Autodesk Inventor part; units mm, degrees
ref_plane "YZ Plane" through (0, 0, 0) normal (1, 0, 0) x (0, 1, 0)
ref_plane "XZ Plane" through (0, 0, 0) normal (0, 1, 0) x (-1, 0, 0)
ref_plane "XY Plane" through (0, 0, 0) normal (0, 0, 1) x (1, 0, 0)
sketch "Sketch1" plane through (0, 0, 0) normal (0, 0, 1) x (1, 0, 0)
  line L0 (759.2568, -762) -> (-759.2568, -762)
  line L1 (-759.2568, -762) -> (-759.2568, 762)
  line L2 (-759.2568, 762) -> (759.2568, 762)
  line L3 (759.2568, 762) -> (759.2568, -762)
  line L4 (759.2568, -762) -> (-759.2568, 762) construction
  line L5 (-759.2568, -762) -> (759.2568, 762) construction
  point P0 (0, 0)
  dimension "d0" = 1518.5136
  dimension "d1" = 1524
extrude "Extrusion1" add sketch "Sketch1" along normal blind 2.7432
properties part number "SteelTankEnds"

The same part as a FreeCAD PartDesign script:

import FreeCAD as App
import Part
import Sketcher

V = App.Vector
Q = App.Units.Quantity

doc = App.newDocument("Part")
params = doc.addObject("Spreadsheet::Sheet", "Params")
for row, (alias, value) in enumerate([
    ("sketch1_height", "60 in"),
    ("sketch1_width", "59.784 in"),
    ("pad1_length", "0.108 in"),
], start=1):
    params.set(f"A{row}", alias)
    params.set(f"B{row}", "=" + value)
    params.setAlias(f"B{row}", alias)

body = doc.addObject("PartDesign::Body", "Body")

# Sketch on XY plane
sketch1 = doc.addObject("Sketcher::SketchObject", "Sketch")
body.addObject(sketch1)
sketch1.AttachmentSupport = (doc.XY_Plane, [""])
sketch1.MapMode = "FlatFace"
sketch1.addGeometry([
    Part.LineSegment(V(-759, -762, 0), V(759, -762, 0)),
    Part.LineSegment(V(759, -762, 0), V(759, 762, 0)),
    Part.LineSegment(V(759, 762, 0), V(-759, 762, 0)),
    Part.LineSegment(V(-759, 762, 0), V(-759, -762, 0)),
], False)
sketch1.addConstraint([
    Sketcher.Constraint("Coincident", 0, 2, 1, 1),
    Sketcher.Constraint("Coincident", 1, 2, 2, 1),
    Sketcher.Constraint("Coincident", 2, 2, 3, 1),
    Sketcher.Constraint("Coincident", 3, 2, 0, 1),
    Sketcher.Constraint("Horizontal", 0),
    Sketcher.Constraint("Vertical", 1),
    Sketcher.Constraint("Horizontal", 2),
    Sketcher.Constraint("Vertical", 3),
    Sketcher.Constraint("Symmetric", 0, 2, 2, 2, -1, 1),
    Sketcher.Constraint("DistanceY", 1, 1, 1, 2, Q("60 in")),
    Sketcher.Constraint("DistanceX", 0, 1, 0, 2, Q("59.784 in")),
])
sketch1.setExpression("Constraints[9]", "Params.sketch1_height")
sketch1.setExpression("Constraints[10]", "Params.sketch1_width")
pad1 = doc.addObject("PartDesign::Pad", "Pad")
body.addObject(pad1)
pad1.Profile = sketch1
pad1.setExpression("Length", "Params.pad1_length")

doc.recompute()
